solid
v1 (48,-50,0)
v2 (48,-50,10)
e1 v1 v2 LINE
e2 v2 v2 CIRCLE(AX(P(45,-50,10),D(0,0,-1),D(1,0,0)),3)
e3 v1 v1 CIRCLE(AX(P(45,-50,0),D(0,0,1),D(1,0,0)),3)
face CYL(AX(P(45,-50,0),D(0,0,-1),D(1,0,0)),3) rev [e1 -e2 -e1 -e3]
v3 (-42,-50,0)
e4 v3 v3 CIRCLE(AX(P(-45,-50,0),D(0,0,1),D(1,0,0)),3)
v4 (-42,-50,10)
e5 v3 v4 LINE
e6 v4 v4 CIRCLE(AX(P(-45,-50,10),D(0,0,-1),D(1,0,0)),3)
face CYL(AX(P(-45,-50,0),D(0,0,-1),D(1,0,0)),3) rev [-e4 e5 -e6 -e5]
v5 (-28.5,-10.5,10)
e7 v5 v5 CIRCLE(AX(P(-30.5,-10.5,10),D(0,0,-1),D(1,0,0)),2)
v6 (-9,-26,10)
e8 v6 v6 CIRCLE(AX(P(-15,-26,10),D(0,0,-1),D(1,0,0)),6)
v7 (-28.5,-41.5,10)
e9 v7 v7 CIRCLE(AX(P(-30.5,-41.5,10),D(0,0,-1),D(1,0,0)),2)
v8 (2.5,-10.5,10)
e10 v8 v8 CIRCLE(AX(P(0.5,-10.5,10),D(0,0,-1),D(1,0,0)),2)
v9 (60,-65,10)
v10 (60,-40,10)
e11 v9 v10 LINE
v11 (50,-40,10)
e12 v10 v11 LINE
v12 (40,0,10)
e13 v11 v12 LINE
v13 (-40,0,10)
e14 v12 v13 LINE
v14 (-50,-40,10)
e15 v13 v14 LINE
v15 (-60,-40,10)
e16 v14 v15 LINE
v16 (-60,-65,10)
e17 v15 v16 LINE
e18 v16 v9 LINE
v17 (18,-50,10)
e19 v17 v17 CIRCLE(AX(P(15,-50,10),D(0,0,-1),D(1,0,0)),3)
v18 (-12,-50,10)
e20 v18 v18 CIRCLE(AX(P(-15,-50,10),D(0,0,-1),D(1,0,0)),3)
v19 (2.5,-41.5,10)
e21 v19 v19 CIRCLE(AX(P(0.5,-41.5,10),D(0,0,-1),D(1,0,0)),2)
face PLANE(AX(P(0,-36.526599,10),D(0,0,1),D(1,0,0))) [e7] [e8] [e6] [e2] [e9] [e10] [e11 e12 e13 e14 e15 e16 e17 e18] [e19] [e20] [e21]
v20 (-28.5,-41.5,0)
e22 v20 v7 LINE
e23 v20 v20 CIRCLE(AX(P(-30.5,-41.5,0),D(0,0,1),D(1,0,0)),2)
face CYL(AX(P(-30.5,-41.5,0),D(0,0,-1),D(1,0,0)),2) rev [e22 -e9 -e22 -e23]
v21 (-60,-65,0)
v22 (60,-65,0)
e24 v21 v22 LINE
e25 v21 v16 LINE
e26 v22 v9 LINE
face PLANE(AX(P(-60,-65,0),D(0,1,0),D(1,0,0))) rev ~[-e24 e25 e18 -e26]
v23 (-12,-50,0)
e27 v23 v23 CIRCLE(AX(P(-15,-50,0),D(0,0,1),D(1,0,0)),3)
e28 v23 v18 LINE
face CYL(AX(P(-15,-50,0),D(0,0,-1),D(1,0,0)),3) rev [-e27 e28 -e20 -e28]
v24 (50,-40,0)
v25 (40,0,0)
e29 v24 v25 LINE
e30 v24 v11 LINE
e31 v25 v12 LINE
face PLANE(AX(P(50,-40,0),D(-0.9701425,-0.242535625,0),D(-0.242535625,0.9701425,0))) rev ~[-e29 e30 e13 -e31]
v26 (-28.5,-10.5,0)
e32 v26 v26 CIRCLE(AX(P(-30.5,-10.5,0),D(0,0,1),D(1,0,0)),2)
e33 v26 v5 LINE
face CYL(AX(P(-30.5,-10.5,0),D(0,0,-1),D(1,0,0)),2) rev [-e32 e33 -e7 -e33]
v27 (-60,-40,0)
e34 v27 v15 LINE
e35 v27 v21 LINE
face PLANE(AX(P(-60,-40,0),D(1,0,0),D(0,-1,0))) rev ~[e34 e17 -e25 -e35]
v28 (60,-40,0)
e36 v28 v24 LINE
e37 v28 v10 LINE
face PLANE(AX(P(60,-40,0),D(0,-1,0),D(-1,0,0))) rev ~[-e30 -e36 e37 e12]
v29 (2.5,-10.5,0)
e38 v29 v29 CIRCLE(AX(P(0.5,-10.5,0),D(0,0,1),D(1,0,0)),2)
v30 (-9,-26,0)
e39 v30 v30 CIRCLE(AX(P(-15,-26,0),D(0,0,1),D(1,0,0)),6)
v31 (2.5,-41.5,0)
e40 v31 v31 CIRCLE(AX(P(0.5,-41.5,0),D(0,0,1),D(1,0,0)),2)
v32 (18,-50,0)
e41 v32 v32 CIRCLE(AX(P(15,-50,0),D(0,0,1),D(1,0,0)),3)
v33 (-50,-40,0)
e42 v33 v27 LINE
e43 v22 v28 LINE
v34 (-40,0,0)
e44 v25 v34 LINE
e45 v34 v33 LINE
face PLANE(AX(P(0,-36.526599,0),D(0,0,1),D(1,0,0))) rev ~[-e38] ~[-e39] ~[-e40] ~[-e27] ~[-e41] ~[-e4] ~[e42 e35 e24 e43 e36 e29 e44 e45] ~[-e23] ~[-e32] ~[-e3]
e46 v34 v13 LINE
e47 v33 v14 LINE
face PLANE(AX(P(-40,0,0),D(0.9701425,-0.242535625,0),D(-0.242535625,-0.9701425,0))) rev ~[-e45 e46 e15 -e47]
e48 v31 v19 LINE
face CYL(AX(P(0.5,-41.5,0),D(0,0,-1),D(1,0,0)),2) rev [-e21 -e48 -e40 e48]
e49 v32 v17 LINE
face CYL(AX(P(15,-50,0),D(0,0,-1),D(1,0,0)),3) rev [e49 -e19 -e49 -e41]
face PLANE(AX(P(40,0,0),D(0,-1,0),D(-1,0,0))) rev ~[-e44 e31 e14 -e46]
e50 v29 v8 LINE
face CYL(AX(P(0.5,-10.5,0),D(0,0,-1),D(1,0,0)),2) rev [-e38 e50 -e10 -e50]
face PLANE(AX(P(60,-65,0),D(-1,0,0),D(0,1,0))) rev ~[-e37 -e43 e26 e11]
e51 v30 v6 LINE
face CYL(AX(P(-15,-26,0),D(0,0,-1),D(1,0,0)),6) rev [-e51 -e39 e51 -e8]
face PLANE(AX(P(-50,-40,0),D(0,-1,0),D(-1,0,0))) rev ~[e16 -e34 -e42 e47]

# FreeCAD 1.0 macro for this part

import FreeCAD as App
import Part
import Sketcher
from FreeCAD import Vector
Q = App.Units.Quantity


def add_polygon(sketch, points):
    """Adds a closed chain of lines whose ends are joined by coincident constraints."""
    first, n = sketch.GeometryCount, len(points)
    for a, b in zip(points, points[1:] + points[:1]):
        sketch.addGeometry(Part.LineSegment(App.Vector(*a, 0), App.Vector(*b, 0)), False)
    for i in range(n):
        sketch.addConstraint(Sketcher.Constraint("Coincident", first + i, 2, first + (i + 1) % n, 1))

doc = App.newDocument("Part")
params = doc.addObject("Spreadsheet::Sheet", "Params")
for row, (alias, value) in enumerate([
    ("sketch1_width", "120 mm"),
    ("sketch1_width2", "10 mm"),
    ("sketch1_width3", "80 mm"),
    ("sketch1_height", "25 mm"),
    ("pad1_length", "10 mm"),
    ("sketch2_diameter", "12 mm"),
    ("sketch2_diameter2", "4 mm"),
    ("pocket1_length", "25 mm"),
    ("sketch3_diameter", "6 mm"),
    ("pocket2_length", "24.5 mm"),
], start=1):
    params.set(f"A{row}", alias)
    params.set(f"B{row}", "=" + value)
    params.setAlias(f"B{row}", alias)

body = doc.addObject("PartDesign::Body", "Body")

# Sketch on XY plane
sketch1 = doc.addObject("Sketcher::SketchObject", "Sketch")
body.addObject(sketch1)
sketch1.AttachmentSupport = (doc.XY_Plane, [""])
sketch1.MapMode = "FlatFace"
add_polygon(sketch1, [(-60, -40), (-60, -65), (60, -65), (60, -40), (50, -40), (40, 0), (-40, 0), (-50, -40)])  # lines 0-7
sketch1.addConstraint(Sketcher.Constraint("Vertical", 0))
sketch1.addConstraint(Sketcher.Constraint("Horizontal", 1))
sketch1.addConstraint(Sketcher.Constraint("Vertical", 2))
sketch1.addConstraint(Sketcher.Constraint("Horizontal", 3))
sketch1.addConstraint(Sketcher.Constraint("Horizontal", 5))
sketch1.addConstraint(Sketcher.Constraint("Horizontal", 7))
sketch1.addConstraint(Sketcher.Constraint("Symmetric", 4, 2, 5, 2, -1, 1))
sketch1.addConstraint(Sketcher.Constraint("Symmetric", 3, 2, 6, 2, -2))
sketch1.addConstraint(Sketcher.Constraint("Equal", 3, 7))
sketch1.addConstraint(Sketcher.Constraint("DistanceX", 1, 1, 1, 2, Q("120 mm")))
sketch1.addConstraint(Sketcher.Constraint("DistanceX", 3, 2, 3, 1, Q("10 mm")))
sketch1.addConstraint(Sketcher.Constraint("DistanceX", 5, 2, 5, 1, Q("80 mm")))
sketch1.addConstraint(Sketcher.Constraint("DistanceY", 0, 2, 0, 1, Q("25 mm")))
sketch1.addConstraint(Sketcher.Constraint("DistanceY", 0, 2, -1, 1, Q("65 mm")))
sketch1.setExpression("Constraints[17]", "Params.sketch1_width")
sketch1.setExpression("Constraints[18]", "Params.sketch1_width2")
sketch1.setExpression("Constraints[19]", "Params.sketch1_width3")
sketch1.setExpression("Constraints[20]", "Params.sketch1_height")
pad1 = doc.addObject("PartDesign::Pad", "Pad")
body.addObject(pad1)
pad1.Profile = sketch1
pad1.setExpression("Length", "Params.pad1_length")

# Sketch on XY plane
sketch2 = doc.addObject("Sketcher::SketchObject", "Sketch001")
body.addObject(sketch2)
sketch2.AttachmentSupport = (doc.XY_Plane, [""])
sketch2.MapMode = "FlatFace"
sketch2.addGeometry(Part.Circle(Vector(-15, -26, 0), Vector(0, 0, 1), 6), False)
sketch2.addGeometry(Part.Circle(Vector(-30.5, -10.5, 0), Vector(0, 0, 1), 2), False)
sketch2.addGeometry(Part.Circle(Vector(0.5, -10.5, 0), Vector(0, 0, 1), 2), False)
sketch2.addGeometry(Part.Circle(Vector(-30.5, -41.5, 0), Vector(0, 0, 1), 2), False)
sketch2.addGeometry(Part.Circle(Vector(0.5, -41.5, 0), Vector(0, 0, 1), 2), False)
sketch2.addConstraint(Sketcher.Constraint("Equal", 1, 2))
sketch2.addConstraint(Sketcher.Constraint("Equal", 2, 3))
sketch2.addConstraint(Sketcher.Constraint("Equal", 3, 4))
sketch2.addConstraint(Sketcher.Constraint("Horizontal", 1, 3, 2, 3))
sketch2.addConstraint(Sketcher.Constraint("Horizontal", 3, 3, 4, 3))
sketch2.addConstraint(Sketcher.Constraint("Vertical", 1, 3, 3, 3))
sketch2.addConstraint(Sketcher.Constraint("Vertical", 2, 3, 4, 3))
sketch2.addConstraint(Sketcher.Constraint("Diameter", 0, Q("12 mm")))
sketch2.addConstraint(Sketcher.Constraint("Diameter", 1, Q("4 mm")))
sketch2.addConstraint(Sketcher.Constraint("DistanceX", 0, 3, -1, 1, Q("15 mm")))
sketch2.addConstraint(Sketcher.Constraint("DistanceY", 0, 3, -1, 1, Q("26 mm")))
sketch2.addConstraint(Sketcher.Constraint("DistanceX", 1, 3, 2, 3, Q("31 mm")))
sketch2.addConstraint(Sketcher.Constraint("DistanceY", 3, 3, 1, 3, Q("31 mm")))
sketch2.addConstraint(Sketcher.Constraint("DistanceX", 1, 3, -1, 1, Q("30.5 mm")))
sketch2.addConstraint(Sketcher.Constraint("DistanceY", 1, 3, -1, 1, Q("10.5 mm")))
sketch2.setExpression("Constraints[7]", "Params.sketch2_diameter")
sketch2.setExpression("Constraints[8]", "Params.sketch2_diameter2")
pocket1 = doc.addObject("PartDesign::Pocket", "Pocket")
body.addObject(pocket1)
pocket1.Profile = sketch2
pocket1.setExpression("Length", "Params.pocket1_length")
pocket1.Reversed = True

# Sketch on XY plane
sketch3 = doc.addObject("Sketcher::SketchObject", "Sketch002")
body.addObject(sketch3)
sketch3.AttachmentSupport = (doc.XY_Plane, [""])
sketch3.MapMode = "FlatFace"
sketch3.addGeometry(Part.Circle(Vector(-45, -50, 0), Vector(0, 0, 1), 3), False)
sketch3.addGeometry(Part.Circle(Vector(-15, -50, 0), Vector(0, 0, 1), 3), False)
sketch3.addGeometry(Part.Circle(Vector(45, -50, 0), Vector(0, 0, 1), 3), False)
sketch3.addGeometry(Part.Circle(Vector(15, -50, 0), Vector(0, 0, 1), 3), False)
sketch3.addConstraint(Sketcher.Constraint("Equal", 0, 1))
sketch3.addConstraint(Sketcher.Constraint("Equal", 1, 2))
sketch3.addConstraint(Sketcher.Constraint("Equal", 2, 3))
sketch3.addConstraint(Sketcher.Constraint("Symmetric", 0, 3, 2, 3, -2))
sketch3.addConstraint(Sketcher.Constraint("Symmetric", 1, 3, 3, 3, -2))
sketch3.addConstraint(Sketcher.Constraint("Horizontal", 0, 3, 1, 3))
sketch3.addConstraint(Sketcher.Constraint("Diameter", 0, Q("6 mm")))
sketch3.addConstraint(Sketcher.Constraint("DistanceX", 0, 3, -1, 1, Q("45 mm")))
sketch3.addConstraint(Sketcher.Constraint("DistanceY", 0, 3, -1, 1, Q("50 mm")))
sketch3.addConstraint(Sketcher.Constraint("DistanceX", 1, 3, -1, 1, Q("15 mm")))
sketch3.setExpression("Constraints[6]", "Params.sketch3_diameter")
pocket2 = doc.addObject("PartDesign::Pocket", "Pocket001")
body.addObject(pocket2)
pocket2.Profile = sketch3
pocket2.setExpression("Length", "Params.pocket2_length")
pocket2.Reversed = True

doc.recompute()
